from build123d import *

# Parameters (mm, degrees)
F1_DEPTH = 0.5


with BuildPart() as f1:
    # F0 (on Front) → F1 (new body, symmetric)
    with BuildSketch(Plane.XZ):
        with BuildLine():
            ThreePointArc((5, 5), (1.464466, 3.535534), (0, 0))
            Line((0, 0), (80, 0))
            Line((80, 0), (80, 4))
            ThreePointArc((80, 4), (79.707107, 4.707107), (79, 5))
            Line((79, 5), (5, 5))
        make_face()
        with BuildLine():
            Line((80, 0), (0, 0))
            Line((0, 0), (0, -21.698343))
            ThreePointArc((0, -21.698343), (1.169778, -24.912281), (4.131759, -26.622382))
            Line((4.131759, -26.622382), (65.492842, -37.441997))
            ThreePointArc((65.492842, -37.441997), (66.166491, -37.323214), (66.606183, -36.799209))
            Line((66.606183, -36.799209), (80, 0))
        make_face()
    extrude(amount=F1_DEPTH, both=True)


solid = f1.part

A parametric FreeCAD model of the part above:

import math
import FreeCAD as App
import Part
import Sketcher
Q = App.Units.Quantity

doc = App.newDocument("Part")
body = doc.addObject("PartDesign::Body", "Body")

# Sketch on XZ plane
sketch1 = doc.addObject("Sketcher::SketchObject", "Sketch")
body.addObject(sketch1)
sketch1.AttachmentSupport = (doc.XZ_Plane, [""])
sketch1.MapMode = "FlatFace"
sketch1.addGeometry([
    Part.ArcOfCircle(Part.Circle(App.Vector(5, 0, 0), App.Vector(0, 0, 1), 5), math.radians(90), math.radians(180)),  # 0
    Part.LineSegment(App.Vector(0, 0, 0), App.Vector(0, -21.7, 0)),  # 1
    Part.ArcOfCircle(Part.Circle(App.Vector(5, -21.7, 0), App.Vector(0, 0, 1), 5), math.radians(-180), math.radians(-100)),  # 2
    Part.LineSegment(App.Vector(4.1, -26.6, 0), App.Vector(65.5, -37.4, 0)),  # 3
    Part.ArcOfCircle(Part.Circle(App.Vector(65.7, -36.5, 0), App.Vector(0, 0, 1), 1), math.radians(-100), math.radians(-20)),  # 4
    Part.LineSegment(App.Vector(66.6, -36.8, 0), App.Vector(80, 0, 0)),  # 5
    Part.LineSegment(App.Vector(80, 0, 0), App.Vector(80, 4, 0)),  # 6
    Part.ArcOfCircle(Part.Circle(App.Vector(79, 4, 0), App.Vector(0, 0, 1), 1), math.radians(0), math.radians(90)),  # 7
    Part.LineSegment(App.Vector(79, 5, 0), App.Vector(5, 5, 0)),  # 8
], False)
sketch1.addConstraint([
    Sketcher.Constraint("Tangent", 0, 2, 1, 1),
    Sketcher.Constraint("Tangent", 1, 2, 2, 1),
    Sketcher.Constraint("Tangent", 2, 2, 3, 1),
    Sketcher.Constraint("Tangent", 3, 2, 4, 1),
    Sketcher.Constraint("Tangent", 4, 2, 5, 1),
    Sketcher.Constraint("Coincident", 5, 2, 6, 1),
    Sketcher.Constraint("Tangent", 6, 2, 7, 1),
    Sketcher.Constraint("Tangent", 7, 2, 8, 1),
    Sketcher.Constraint("Tangent", 8, 2, 0, 1),
    Sketcher.Constraint("Vertical", 1),
    Sketcher.Constraint("Vertical", 6),
    Sketcher.Constraint("Horizontal", 8),
    Sketcher.Constraint("Coincident", 0, 2, -1, 1),
    Sketcher.Constraint("Equal", 0, 2),
    Sketcher.Constraint("Equal", 4, 7),
    Sketcher.Constraint("PointOnObject", 5, 2, -1),
    Sketcher.Constraint("Radius", 0, Q("5 mm")),
    Sketcher.Constraint("Radius", 4, Q("1.000001 mm")),
    Sketcher.Constraint("DistanceX", 8, 2, 8, 1, Q("74 mm")),
    Sketcher.Constraint("Angle", 3, Q("-10 deg")),
    Sketcher.Constraint("Angle", 5, Q("70 deg")),
    Sketcher.Constraint("Distance", 5, Q("39.1609 mm")),
])
pad1 = doc.addObject("PartDesign::Pad", "Pad")
body.addObject(pad1)
pad1.Profile = sketch1
pad1.Length = 1
pad1.Midplane = True

doc.recompute()
